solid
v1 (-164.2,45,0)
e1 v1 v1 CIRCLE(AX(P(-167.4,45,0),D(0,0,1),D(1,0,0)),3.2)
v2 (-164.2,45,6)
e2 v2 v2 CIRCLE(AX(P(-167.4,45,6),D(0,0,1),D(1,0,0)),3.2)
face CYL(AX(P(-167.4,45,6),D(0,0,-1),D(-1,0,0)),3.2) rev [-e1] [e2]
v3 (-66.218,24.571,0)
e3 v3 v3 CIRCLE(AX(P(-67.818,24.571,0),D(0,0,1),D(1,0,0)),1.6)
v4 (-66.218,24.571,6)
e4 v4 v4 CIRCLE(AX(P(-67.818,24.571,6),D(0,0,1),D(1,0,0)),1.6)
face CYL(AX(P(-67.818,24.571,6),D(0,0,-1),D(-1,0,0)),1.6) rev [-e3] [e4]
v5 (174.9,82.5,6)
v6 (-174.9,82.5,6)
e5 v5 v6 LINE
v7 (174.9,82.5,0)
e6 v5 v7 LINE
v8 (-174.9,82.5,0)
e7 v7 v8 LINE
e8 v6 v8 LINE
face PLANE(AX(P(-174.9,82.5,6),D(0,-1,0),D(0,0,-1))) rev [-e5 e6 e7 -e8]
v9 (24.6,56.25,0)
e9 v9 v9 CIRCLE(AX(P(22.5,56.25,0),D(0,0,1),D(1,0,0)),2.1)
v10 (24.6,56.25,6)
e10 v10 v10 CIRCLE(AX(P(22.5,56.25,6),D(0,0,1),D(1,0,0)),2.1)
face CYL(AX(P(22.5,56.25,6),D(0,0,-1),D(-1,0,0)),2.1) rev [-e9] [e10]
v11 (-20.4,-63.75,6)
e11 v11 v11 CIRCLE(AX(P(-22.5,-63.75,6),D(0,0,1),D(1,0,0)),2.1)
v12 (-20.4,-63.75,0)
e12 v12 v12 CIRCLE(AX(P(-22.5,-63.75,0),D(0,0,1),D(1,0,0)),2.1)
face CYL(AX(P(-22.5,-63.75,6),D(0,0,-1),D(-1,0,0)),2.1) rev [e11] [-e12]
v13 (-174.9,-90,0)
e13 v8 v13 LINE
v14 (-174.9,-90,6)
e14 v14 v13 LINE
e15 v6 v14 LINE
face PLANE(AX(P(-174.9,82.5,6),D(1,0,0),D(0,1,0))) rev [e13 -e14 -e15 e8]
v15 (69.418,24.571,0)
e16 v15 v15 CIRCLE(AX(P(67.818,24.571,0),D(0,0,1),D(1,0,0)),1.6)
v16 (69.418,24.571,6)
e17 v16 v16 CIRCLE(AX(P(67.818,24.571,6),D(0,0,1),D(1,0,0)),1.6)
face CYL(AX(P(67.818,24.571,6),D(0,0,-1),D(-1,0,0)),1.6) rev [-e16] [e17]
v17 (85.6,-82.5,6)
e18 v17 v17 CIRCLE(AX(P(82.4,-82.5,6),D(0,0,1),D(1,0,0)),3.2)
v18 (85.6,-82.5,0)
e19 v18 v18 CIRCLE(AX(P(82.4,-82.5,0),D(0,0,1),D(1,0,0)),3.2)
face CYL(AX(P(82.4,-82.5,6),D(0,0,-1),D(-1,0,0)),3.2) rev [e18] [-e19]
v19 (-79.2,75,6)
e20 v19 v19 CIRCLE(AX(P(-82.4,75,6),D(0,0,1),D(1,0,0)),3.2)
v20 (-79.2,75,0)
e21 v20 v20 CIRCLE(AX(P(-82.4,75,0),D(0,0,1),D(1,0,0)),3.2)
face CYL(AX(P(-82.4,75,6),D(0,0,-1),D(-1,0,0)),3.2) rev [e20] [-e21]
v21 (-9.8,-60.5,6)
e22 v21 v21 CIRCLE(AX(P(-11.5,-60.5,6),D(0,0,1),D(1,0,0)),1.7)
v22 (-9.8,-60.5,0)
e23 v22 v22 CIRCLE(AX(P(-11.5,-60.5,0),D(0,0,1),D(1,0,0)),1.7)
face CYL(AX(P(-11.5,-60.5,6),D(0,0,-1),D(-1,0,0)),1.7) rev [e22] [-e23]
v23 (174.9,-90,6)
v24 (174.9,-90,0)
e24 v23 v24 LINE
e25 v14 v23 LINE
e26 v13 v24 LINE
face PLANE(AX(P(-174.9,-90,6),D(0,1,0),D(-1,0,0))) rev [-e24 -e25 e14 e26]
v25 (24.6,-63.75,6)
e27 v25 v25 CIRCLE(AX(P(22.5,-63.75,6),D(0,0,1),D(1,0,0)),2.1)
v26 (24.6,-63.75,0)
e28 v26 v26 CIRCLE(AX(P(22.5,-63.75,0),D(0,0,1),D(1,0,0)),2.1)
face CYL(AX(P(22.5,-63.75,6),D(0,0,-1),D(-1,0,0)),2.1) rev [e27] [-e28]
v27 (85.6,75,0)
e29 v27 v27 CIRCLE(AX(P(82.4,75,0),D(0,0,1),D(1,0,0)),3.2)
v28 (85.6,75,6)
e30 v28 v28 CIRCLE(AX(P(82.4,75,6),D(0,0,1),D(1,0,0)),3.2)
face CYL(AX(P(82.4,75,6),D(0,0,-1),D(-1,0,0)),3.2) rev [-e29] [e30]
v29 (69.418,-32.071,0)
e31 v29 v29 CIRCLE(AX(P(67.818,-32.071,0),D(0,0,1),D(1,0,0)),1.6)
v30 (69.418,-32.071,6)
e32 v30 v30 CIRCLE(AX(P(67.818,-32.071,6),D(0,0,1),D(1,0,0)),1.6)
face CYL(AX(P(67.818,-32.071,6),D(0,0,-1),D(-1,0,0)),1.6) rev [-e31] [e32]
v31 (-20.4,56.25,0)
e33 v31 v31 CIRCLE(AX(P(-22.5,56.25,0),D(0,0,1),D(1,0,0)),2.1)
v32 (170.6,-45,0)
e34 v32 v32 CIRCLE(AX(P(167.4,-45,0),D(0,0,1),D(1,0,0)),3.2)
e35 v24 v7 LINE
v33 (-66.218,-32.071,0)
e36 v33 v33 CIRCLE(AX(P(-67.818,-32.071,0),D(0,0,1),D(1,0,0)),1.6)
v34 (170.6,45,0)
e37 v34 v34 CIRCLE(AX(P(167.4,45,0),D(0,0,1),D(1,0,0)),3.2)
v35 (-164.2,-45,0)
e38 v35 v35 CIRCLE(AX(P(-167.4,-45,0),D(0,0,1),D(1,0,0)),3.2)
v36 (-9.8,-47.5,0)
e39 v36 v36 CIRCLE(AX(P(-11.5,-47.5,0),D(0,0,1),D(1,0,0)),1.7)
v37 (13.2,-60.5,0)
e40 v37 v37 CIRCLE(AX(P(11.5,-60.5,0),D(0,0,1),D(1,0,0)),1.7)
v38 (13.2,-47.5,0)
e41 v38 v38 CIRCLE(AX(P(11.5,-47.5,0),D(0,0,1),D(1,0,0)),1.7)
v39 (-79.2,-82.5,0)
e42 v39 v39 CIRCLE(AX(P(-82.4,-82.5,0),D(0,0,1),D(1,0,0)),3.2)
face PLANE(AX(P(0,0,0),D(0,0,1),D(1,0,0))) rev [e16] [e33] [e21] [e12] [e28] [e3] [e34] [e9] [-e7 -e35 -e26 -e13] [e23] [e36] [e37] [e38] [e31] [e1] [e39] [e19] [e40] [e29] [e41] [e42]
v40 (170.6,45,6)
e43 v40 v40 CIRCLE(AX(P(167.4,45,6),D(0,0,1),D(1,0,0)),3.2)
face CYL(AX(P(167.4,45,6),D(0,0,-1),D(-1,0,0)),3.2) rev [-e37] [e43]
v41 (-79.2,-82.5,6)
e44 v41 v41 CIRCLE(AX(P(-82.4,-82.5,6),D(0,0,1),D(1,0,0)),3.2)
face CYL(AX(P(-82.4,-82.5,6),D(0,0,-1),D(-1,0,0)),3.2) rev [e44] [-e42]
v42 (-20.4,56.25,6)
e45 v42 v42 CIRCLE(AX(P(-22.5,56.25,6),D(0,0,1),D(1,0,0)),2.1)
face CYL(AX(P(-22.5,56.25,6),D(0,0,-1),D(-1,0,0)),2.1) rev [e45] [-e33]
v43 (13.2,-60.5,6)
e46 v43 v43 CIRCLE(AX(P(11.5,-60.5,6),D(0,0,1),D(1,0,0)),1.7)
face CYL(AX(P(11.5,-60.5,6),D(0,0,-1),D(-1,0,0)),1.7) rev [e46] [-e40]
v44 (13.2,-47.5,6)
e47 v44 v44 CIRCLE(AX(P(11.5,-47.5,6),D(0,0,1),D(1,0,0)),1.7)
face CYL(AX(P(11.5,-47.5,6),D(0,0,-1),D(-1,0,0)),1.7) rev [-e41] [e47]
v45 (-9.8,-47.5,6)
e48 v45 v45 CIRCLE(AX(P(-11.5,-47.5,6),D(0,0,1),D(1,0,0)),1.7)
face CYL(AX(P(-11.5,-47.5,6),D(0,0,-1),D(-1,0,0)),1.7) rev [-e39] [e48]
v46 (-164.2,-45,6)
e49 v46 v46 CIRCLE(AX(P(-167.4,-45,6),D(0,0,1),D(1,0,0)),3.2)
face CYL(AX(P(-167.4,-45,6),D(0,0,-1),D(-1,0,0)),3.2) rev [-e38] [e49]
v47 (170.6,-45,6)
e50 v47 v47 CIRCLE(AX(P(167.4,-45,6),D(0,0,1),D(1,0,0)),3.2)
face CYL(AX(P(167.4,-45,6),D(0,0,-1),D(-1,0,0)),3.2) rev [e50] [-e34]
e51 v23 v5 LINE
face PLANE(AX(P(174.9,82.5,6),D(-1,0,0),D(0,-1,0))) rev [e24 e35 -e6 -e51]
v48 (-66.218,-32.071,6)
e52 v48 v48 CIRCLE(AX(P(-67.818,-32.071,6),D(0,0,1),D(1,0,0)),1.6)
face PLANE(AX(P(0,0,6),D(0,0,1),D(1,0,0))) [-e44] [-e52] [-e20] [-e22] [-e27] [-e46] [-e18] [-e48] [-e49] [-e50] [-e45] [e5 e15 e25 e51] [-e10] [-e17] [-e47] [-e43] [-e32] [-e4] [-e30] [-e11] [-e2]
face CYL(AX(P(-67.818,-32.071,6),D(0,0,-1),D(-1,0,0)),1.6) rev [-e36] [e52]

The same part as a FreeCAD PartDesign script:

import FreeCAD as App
import Part
import Sketcher
Q = App.Units.Quantity


def add_polygon(sketch, points):
    """Adds a closed chain of lines whose ends are joined by coincident constraints."""
    first, n = sketch.GeometryCount, len(points)
    for a, b in zip(points, points[1:] + points[:1]):
        sketch.addGeometry(Part.LineSegment(App.Vector(*a, 0), App.Vector(*b, 0)), False)
    for i in range(n):
        sketch.addConstraint(Sketcher.Constraint("Coincident", first + i, 2, first + (i + 1) % n, 1))

doc = App.newDocument("Part")
params = doc.addObject("Spreadsheet::Sheet", "Params")
for row, (alias, value) in enumerate([
    ("sketch1_diameter", "6.4 mm"),
    ("sketch1_diameter2", "4.2 mm"),
    ("sketch1_diameter3", "3.4 mm"),
    ("sketch1_diameter4", "3.2 mm"),
    ("sketch1_width", "349.8 mm"),
    ("pad1_length", "6 mm"),
], start=1):
    params.set(f"A{row}", alias)
    params.set(f"B{row}", "=" + value)
    params.setAlias(f"B{row}", alias)

body = doc.addObject("PartDesign::Body", "Body")

# Sketch on XY plane
sketch1 = body.newObject("Sketcher::SketchObject", "Sketch")
sketch1.AttachmentSupport = (doc.getObject("XY_Plane"), [""])
sketch1.MapMode = "FlatFace"
add_polygon(sketch1, [(-174.9, 82.5), (-174.9, -90), (174.9, -90), (174.9, 82.5)])  # lines 0-3
sketch1.addGeometry(Part.Circle(App.Vector(-167.4, -45, 0), App.Vector(0, 0, 1), 3.2), False)  # 4
sketch1.addGeometry(Part.Circle(App.Vector(-82.4, -82.5, 0), App.Vector(0, 0, 1), 3.2), False)  # 5
sketch1.addGeometry(Part.Circle(App.Vector(-22.5, -63.75, 0), App.Vector(0, 0, 1), 2.1), False)  # 6
sketch1.addGeometry(Part.Circle(App.Vector(-11.5, -60.5, 0), App.Vector(0, 0, 1), 1.7), False)  # 7
sketch1.addGeometry(Part.Circle(App.Vector(-11.5, -47.5, 0), App.Vector(0, 0, 1), 1.7), False)  # 8
sketch1.addGeometry(Part.Circle(App.Vector(-67.818, -32.071, 0), App.Vector(0, 0, 1), 1.6), False)  # 9
sketch1.addGeometry(Part.Circle(App.Vector(82.4, -82.5, 0), App.Vector(0, 0, 1), 3.2), False)  # 10
sketch1.addGeometry(Part.Circle(App.Vector(11.5, -60.5, 0), App.Vector(0, 0, 1), 1.7), False)  # 11
sketch1.addGeometry(Part.Circle(App.Vector(22.5, -63.75, 0), App.Vector(0, 0, 1), 2.1), False)  # 12
sketch1.addGeometry(Part.Circle(App.Vector(11.5, -47.5, 0), App.Vector(0, 0, 1), 1.7), False)  # 13
sketch1.addGeometry(Part.Circle(App.Vector(167.4, -45, 0), App.Vector(0, 0, 1), 3.2), False)  # 14
sketch1.addGeometry(Part.Circle(App.Vector(67.818, -32.071, 0), App.Vector(0, 0, 1), 1.6), False)  # 15
sketch1.addGeometry(Part.Circle(App.Vector(-67.818, 24.571, 0), App.Vector(0, 0, 1), 1.6), False)  # 16
sketch1.addGeometry(Part.Circle(App.Vector(-167.4, 45, 0), App.Vector(0, 0, 1), 3.2), False)  # 17
sketch1.addGeometry(Part.Circle(App.Vector(-22.5, 56.25, 0), App.Vector(0, 0, 1), 2.1), False)  # 18
sketch1.addGeometry(Part.Circle(App.Vector(-82.4, 75, 0), App.Vector(0, 0, 1), 3.2), False)  # 19
sketch1.addGeometry(Part.Circle(App.Vector(67.818, 24.571, 0), App.Vector(0, 0, 1), 1.6), False)  # 20
sketch1.addGeometry(Part.Circle(App.Vector(22.5, 56.25, 0), App.Vector(0, 0, 1), 2.1), False)  # 21
sketch1.addGeometry(Part.Circle(App.Vector(82.4, 75, 0), App.Vector(0, 0, 1), 3.2), False)  # 22
sketch1.addGeometry(Part.Circle(App.Vector(167.4, 45, 0), App.Vector(0, 0, 1), 3.2), False)  # 23
sketch1.addConstraint(Sketcher.Constraint("Vertical", 0))
sketch1.addConstraint(Sketcher.Constraint("Horizontal", 1))
sketch1.addConstraint(Sketcher.Constraint("Vertical", 2))
sketch1.addConstraint(Sketcher.Constraint("Horizontal", 3))
sketch1.addConstraint(Sketcher.Constraint("Equal", 4, 5))
sketch1.addConstraint(Sketcher.Constraint("Equal", 7, 8))
sketch1.addConstraint(Sketcher.Constraint("Equal", 5, 10))
sketch1.addConstraint(Sketcher.Constraint("Equal", 8, 11))
sketch1.addConstraint(Sketcher.Constraint("Equal", 6, 12))
sketch1.addConstraint(Sketcher.Constraint("Equal", 11, 13))
sketch1.addConstraint(Sketcher.Constraint("Equal", 10, 14))
sketch1.addConstraint(Sketcher.Constraint("Equal", 9, 15))
sketch1.addConstraint(Sketcher.Constraint("Equal", 15, 16))
sketch1.addConstraint(Sketcher.Constraint("Equal", 14, 17))
sketch1.addConstraint(Sketcher.Constraint("Equal", 12, 18))
sketch1.addConstraint(Sketcher.Constraint("Equal", 17, 19))
sketch1.addConstraint(Sketcher.Constraint("Equal", 16, 20))
sketch1.addConstraint(Sketcher.Constraint("Equal", 18, 21))
sketch1.addConstraint(Sketcher.Constraint("Equal", 19, 22))
sketch1.addConstraint(Sketcher.Constraint("Equal", 22, 23))
sketch1.addConstraint(Sketcher.Constraint("Symmetric", 14, 3, 17, 3, -1, 1))
sketch1.addConstraint(Sketcher.Constraint("Symmetric", 4, 3, 23, 3, -1, 1))
sketch1.addConstraint(Sketcher.Constraint("Symmetric", 5, 3, 10, 3, -2))
sketch1.addConstraint(Sketcher.Constraint("Symmetric", 7, 3, 11, 3, -2))
sketch1.addConstraint(Sketcher.Constraint("Symmetric", 6, 3, 12, 3, -2))
sketch1.addConstraint(Sketcher.Constraint("Symmetric", 8, 3, 13, 3, -2))
sketch1.addConstraint(Sketcher.Constraint("Symmetric", 4, 3, 14, 3, -2))
sketch1.addConstraint(Sketcher.Constraint("Symmetric", 9, 3, 15, 3, -2))
sketch1.addConstraint(Sketcher.Constraint("Symmetric", 16, 3, 20, 3, -2))
sketch1.addConstraint(Sketcher.Constraint("Symmetric", 18, 3, 21, 3, -2))
sketch1.addConstraint(Sketcher.Constraint("Symmetric", 19, 3, 22, 3, -2))
sketch1.addConstraint(Sketcher.Constraint("Vertical", 7, 3, 8, 3))
sketch1.addConstraint(Sketcher.Constraint("Vertical", 9, 3, 16, 3))
sketch1.addConstraint(Sketcher.Constraint("Vertical", 6, 3, 18, 3))
sketch1.addConstraint(Sketcher.Constraint("Vertical", 5, 3, 19, 3))
sketch1.addConstraint(Sketcher.Constraint("Diameter", 4, Q("6.4 mm")))
sketch1.addConstraint(Sketcher.Constraint("Diameter", 6, Q("4.2 mm")))
sketch1.addConstraint(Sketcher.Constraint("Diameter", 7, Q("3.4 mm")))
sketch1.addConstraint(Sketcher.Constraint("Diameter", 9, Q("3.2 mm")))
sketch1.addConstraint(Sketcher.Constraint("DistanceX", 1, 1, 1, 2, Q("349.8 mm")))
sketch1.addConstraint(Sketcher.Constraint("DistanceY", 0, 2, 0, 1, Q("172.5 mm")))
sketch1.addConstraint(Sketcher.Constraint("DistanceY", 4, 3, -1, 1, Q("45 mm")))
sketch1.addConstraint(Sketcher.Constraint("DistanceY", -1, 1, 19, 3, Q("75 mm")))
sketch1.addConstraint(Sketcher.Constraint("DistanceY", 0, 2, -1, 1, Q("90 mm")))
sketch1.addConstraint(Sketcher.Constraint("DistanceX", 4, 3, 5, 3, Q("85 mm")))
sketch1.addConstraint(Sketcher.Constraint("DistanceX", 6, 3, 7, 3, Q("11 mm")))
sketch1.addConstraint(Sketcher.Constraint("DistanceY", 5, 3, 7, 3, Q("22 mm")))
sketch1.addConstraint(Sketcher.Constraint("DistanceY", 7, 3, 8, 3, Q("13 mm")))
sketch1.addConstraint(Sketcher.Constraint("DistanceX", 7, 3, 11, 3, Q("23 mm")))
sketch1.addConstraint(Sketcher.Constraint("DistanceX", 4, 3, -1, 1, Q("167.4 mm")))
sketch1.addConstraint(Sketcher.Constraint("DistanceY", 5, 3, -1, 1, Q("82.5 mm")))
sketch1.addConstraint(Sketcher.Constraint("DistanceX", 0, 2, -1, 1, Q("174.9 mm")))
sketch1.addConstraint(Sketcher.Constraint("DistanceY", 6, 3, -1, 1, Q("63.75 mm")))
sketch1.addConstraint(Sketcher.Constraint("DistanceY", -1, 1, 18, 3, Q("56.25 mm")))
sketch1.addConstraint(Sketcher.Constraint("DistanceX", 9, 3, -1, 1, Q("67.818 mm")))
sketch1.addConstraint(Sketcher.Constraint("DistanceY", 9, 3, -1, 1, Q("32.071 mm")))
sketch1.addConstraint(Sketcher.Constraint("DistanceY", -1, 1, 16, 3, Q("24.571 mm")))
sketch1.setExpression("Constraints[39]", "Params.sketch1_diameter")
sketch1.setExpression("Constraints[40]", "Params.sketch1_diameter2")
sketch1.setExpression("Constraints[41]", "Params.sketch1_diameter3")
sketch1.setExpression("Constraints[42]", "Params.sketch1_diameter4")
sketch1.setExpression("Constraints[43]", "Params.sketch1_width")
pad1 = body.newObject("PartDesign::Pad", "Pad")
pad1.Profile = sketch1
pad1.setExpression("Length", "Params.pad1_length")

doc.recompute()
